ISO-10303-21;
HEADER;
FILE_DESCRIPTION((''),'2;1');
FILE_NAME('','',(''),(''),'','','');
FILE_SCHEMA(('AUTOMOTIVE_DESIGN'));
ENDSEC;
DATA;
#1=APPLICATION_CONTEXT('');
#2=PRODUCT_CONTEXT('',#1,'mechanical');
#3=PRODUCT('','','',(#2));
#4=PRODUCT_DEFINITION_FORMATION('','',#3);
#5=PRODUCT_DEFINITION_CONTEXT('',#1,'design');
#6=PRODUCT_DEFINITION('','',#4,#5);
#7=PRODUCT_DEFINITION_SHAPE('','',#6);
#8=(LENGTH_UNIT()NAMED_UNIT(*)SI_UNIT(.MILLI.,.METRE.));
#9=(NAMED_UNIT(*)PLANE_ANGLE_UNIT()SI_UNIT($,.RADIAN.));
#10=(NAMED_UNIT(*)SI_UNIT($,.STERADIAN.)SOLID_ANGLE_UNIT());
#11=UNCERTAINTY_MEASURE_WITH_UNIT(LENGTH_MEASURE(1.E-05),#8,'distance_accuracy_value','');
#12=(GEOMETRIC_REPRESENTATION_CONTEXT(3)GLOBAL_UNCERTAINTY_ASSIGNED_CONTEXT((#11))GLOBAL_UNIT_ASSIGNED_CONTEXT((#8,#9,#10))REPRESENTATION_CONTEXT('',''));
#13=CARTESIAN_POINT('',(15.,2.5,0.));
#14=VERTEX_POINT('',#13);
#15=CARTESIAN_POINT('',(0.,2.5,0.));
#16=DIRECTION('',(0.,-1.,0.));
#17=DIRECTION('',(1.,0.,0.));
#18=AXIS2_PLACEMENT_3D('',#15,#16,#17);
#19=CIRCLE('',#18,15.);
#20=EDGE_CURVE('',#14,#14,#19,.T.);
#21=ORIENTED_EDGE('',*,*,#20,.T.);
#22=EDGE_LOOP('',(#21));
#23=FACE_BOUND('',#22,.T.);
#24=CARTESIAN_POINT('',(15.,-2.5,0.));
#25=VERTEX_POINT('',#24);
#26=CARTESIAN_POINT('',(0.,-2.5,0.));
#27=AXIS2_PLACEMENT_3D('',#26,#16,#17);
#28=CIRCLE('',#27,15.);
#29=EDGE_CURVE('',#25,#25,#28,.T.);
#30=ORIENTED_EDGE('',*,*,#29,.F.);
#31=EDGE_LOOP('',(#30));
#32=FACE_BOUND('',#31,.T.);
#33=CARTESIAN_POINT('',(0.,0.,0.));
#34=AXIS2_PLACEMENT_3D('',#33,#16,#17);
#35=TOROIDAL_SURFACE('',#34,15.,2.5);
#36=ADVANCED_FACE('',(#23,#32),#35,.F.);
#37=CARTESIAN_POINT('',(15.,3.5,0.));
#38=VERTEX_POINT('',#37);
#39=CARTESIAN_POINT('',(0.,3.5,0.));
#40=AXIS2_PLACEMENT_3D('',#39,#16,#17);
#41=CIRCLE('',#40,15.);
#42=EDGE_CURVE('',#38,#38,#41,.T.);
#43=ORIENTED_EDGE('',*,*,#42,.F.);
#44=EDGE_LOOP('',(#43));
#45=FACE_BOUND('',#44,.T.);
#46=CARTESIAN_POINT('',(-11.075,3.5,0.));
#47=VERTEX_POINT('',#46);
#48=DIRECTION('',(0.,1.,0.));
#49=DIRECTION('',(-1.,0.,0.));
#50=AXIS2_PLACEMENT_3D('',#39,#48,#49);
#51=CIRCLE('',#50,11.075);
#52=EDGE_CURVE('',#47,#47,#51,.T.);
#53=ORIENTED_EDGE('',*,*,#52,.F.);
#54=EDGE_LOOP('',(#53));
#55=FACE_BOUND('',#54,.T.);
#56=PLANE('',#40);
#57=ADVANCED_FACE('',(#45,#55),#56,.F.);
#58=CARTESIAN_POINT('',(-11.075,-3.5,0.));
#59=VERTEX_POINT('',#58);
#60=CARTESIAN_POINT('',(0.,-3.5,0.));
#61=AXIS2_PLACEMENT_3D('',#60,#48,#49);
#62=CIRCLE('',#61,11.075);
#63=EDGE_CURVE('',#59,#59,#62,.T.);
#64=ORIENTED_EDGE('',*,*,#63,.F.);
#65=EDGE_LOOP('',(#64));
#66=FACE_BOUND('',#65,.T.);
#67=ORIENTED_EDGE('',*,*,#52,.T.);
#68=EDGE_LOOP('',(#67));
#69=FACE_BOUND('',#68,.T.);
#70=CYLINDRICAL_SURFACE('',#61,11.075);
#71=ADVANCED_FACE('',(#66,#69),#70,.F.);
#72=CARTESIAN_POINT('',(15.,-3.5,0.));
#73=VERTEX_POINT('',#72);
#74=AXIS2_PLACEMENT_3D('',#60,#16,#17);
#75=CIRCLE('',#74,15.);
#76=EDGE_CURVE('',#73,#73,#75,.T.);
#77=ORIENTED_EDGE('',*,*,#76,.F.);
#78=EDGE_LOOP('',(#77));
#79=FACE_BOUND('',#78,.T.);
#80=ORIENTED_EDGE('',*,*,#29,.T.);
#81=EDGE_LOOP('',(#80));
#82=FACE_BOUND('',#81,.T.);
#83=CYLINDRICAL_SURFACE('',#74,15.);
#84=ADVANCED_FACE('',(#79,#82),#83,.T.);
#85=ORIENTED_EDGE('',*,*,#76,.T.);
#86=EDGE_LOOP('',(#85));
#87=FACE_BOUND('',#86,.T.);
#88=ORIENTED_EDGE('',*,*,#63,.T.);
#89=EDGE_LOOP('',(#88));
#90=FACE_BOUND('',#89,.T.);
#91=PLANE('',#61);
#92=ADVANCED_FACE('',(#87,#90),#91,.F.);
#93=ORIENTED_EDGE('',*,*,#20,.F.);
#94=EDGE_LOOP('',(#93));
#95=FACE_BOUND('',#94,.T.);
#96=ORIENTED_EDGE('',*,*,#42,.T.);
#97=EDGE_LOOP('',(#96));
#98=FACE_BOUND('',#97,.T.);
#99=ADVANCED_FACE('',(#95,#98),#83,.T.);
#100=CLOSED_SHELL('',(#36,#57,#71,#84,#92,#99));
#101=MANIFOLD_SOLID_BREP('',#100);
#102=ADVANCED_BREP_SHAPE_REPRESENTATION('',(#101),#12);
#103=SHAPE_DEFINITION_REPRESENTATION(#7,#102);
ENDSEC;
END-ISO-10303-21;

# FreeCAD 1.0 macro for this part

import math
import FreeCAD as App
import Part
import Sketcher

doc = App.newDocument("Part")
params = doc.addObject("Spreadsheet::Sheet", "Params")
for row, (alias, value) in enumerate([
    ("sketch1_radius", "2.5 mm"),
    ("sketch1_width", "15 mm"),
    ("sketch1_height", "1 mm"),
    ("revolution_angle", "360 deg"),
    ("sketch2_diameter", "22.15 mm"),
], start=1):
    params.set(f"A{row}", alias)
    params.set(f"B{row}", "=" + value)
    params.setAlias(f"B{row}", alias)

body = doc.addObject("PartDesign::Body", "Body")

sketch1 = doc.addObject("Sketcher::SketchObject", "Sketch")
body.addObject(sketch1)
sketch1.AttachmentSupport = (doc.XY_Plane, [""])
sketch1.MapMode = "FlatFace"
sketch1.addGeometry([
    Part.LineSegment(App.Vector(-15, 3.5, 0), App.Vector(-15, 2.5, 0)),
    Part.ArcOfCircle(Part.Circle(App.Vector(-15, 0, 0), App.Vector(0, 0, 1), 2.5), math.radians(-90), math.radians(90)),
    Part.LineSegment(App.Vector(-15, -2.5, 0), App.Vector(-15, -3.5, 0)),
    Part.LineSegment(App.Vector(-15, -3.5, 0), App.Vector(0, -3.5, 0)),
    Part.LineSegment(App.Vector(0, -3.5, 0), App.Vector(0, 3.5, 0)),
    Part.LineSegment(App.Vector(0, 3.5, 0), App.Vector(-15, 3.5, 0)),
], False)
sketch1.addConstraint([
    Sketcher.Constraint("Coincident", 0, 2, 1, 2),
    Sketcher.Constraint("Coincident", 1, 1, 2, 1),
    Sketcher.Constraint("Coincident", 2, 2, 3, 1),
    Sketcher.Constraint("Coincident", 3, 2, 4, 1),
    Sketcher.Constraint("Coincident", 4, 2, 5, 1),
    Sketcher.Constraint("Coincident", 5, 2, 0, 1),
    Sketcher.Constraint("Vertical", 0),
    Sketcher.Constraint("Vertical", 2),
    Sketcher.Constraint("Horizontal", 3),
    Sketcher.Constraint("Vertical", 4),
    Sketcher.Constraint("Horizontal", 5),
    Sketcher.Constraint("Symmetric", 3, 2, 4, 2, -1, 1),
    Sketcher.Constraint("Symmetric", 0, 2, 1, 1, -1),
    Sketcher.Constraint("Vertical", 1, 3, 0, 2),
    Sketcher.Constraint("Radius", 1, 2.5),
    Sketcher.Constraint("DistanceX", 3, 1, 3, 2, 15.0),
    Sketcher.Constraint("DistanceY", 0, 2, 0, 1, 1.0),
])
sketch1.setExpression("Constraints[14]", "Params.sketch1_radius")
sketch1.setExpression("Constraints[15]", "Params.sketch1_width")
sketch1.setExpression("Constraints[16]", "Params.sketch1_height")
revolution = doc.addObject("PartDesign::Revolution", "Revolution")
body.addObject(revolution)
revolution.Profile = sketch1
revolution.ReferenceAxis = (sketch1, ["V_Axis"])
revolution.setExpression("Angle", "Params.revolution_angle")

sketch2 = doc.addObject("Sketcher::SketchObject", "Sketch001")
body.addObject(sketch2)
sketch2.AttachmentSupport = (doc.XZ_Plane, [""])
sketch2.MapMode = "FlatFace"
sketch2.AttachmentOffset = App.Placement(App.Vector(0, 0, -3.5), App.Rotation())
sketch2.addGeometry(Part.Circle(App.Vector(0, 0, 0), App.Vector(0, 0, 1), 11), False)
sketch2.addConstraint([
    Sketcher.Constraint("Coincident", 0, 3, -1, 1),
    Sketcher.Constraint("Diameter", 0, 22.15),
])
sketch2.setExpression("Constraints[1]", "Params.sketch2_diameter")
pocket1 = doc.addObject("PartDesign::Pocket", "Pocket")
body.addObject(pocket1)
pocket1.Profile = sketch2
pocket1.Type = "ThroughAll"
pocket1.Reversed = True

doc.recompute()
